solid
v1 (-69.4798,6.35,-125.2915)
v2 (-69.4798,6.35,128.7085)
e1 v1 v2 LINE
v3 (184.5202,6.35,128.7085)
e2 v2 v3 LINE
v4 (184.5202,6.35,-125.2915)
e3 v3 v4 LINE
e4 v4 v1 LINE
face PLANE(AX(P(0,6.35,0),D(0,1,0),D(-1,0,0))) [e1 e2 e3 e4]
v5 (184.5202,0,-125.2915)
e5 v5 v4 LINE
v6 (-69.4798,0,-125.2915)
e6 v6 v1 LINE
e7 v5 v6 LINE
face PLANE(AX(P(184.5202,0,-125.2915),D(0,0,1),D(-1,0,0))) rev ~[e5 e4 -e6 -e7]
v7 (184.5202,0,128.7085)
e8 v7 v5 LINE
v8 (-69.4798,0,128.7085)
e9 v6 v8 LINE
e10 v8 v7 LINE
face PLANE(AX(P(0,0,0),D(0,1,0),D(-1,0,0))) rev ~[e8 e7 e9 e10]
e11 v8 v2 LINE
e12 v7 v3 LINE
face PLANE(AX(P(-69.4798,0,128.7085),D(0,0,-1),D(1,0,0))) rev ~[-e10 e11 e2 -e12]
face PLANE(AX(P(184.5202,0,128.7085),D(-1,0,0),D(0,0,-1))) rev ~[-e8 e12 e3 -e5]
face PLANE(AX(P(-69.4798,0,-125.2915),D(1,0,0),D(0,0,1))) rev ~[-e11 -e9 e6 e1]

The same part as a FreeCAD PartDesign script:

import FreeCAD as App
import Part
import Sketcher

V = App.Vector
Q = App.Units.Quantity


def add_polygon(sketch, points):
    """Adds a closed chain of lines whose ends are joined by coincident constraints."""
    first, n = sketch.GeometryCount, len(points)
    for a, b in zip(points, points[1:] + points[:1]):
        sketch.addGeometry(Part.LineSegment(App.Vector(*a, 0), App.Vector(*b, 0)), False)
    for i in range(n):
        sketch.addConstraint(Sketcher.Constraint("Coincident", first + i, 2, first + (i + 1) % n, 1))

doc = App.newDocument("Part")
body = doc.addObject("PartDesign::Body", "Body")

sketch1 = doc.addObject("Sketcher::SketchObject", "Sketch")
body.addObject(sketch1)
sketch1.AttachmentSupport = (doc.XZ_Plane, [""])
sketch1.MapMode = "FlatFace"
add_polygon(sketch1, [(-69, -125), (-69, 129), (185, 129), (185, -125)])
sketch1.addConstraint([
    Sketcher.Constraint("Vertical", 0),
    Sketcher.Constraint("Horizontal", 1),
    Sketcher.Constraint("Vertical", 2),
    Sketcher.Constraint("Horizontal", 3),
    Sketcher.Constraint("Equal", 3, 0),
    Sketcher.Constraint("DistanceX", 1, 1, 1, 2, Q("10 in")),
    Sketcher.Constraint("DistanceX", 0, 2, -1, 1, Q("69.4798 mm")),
    Sketcher.Constraint("DistanceY", -1, 1, 0, 2, Q("128.7085 mm")),
])
pad1 = doc.addObject("PartDesign::Pad", "Pad")
body.addObject(pad1)
pad1.Profile = sketch1
pad1.Length = Q("0.25 in")
pad1.Reversed = True

doc.recompute()
